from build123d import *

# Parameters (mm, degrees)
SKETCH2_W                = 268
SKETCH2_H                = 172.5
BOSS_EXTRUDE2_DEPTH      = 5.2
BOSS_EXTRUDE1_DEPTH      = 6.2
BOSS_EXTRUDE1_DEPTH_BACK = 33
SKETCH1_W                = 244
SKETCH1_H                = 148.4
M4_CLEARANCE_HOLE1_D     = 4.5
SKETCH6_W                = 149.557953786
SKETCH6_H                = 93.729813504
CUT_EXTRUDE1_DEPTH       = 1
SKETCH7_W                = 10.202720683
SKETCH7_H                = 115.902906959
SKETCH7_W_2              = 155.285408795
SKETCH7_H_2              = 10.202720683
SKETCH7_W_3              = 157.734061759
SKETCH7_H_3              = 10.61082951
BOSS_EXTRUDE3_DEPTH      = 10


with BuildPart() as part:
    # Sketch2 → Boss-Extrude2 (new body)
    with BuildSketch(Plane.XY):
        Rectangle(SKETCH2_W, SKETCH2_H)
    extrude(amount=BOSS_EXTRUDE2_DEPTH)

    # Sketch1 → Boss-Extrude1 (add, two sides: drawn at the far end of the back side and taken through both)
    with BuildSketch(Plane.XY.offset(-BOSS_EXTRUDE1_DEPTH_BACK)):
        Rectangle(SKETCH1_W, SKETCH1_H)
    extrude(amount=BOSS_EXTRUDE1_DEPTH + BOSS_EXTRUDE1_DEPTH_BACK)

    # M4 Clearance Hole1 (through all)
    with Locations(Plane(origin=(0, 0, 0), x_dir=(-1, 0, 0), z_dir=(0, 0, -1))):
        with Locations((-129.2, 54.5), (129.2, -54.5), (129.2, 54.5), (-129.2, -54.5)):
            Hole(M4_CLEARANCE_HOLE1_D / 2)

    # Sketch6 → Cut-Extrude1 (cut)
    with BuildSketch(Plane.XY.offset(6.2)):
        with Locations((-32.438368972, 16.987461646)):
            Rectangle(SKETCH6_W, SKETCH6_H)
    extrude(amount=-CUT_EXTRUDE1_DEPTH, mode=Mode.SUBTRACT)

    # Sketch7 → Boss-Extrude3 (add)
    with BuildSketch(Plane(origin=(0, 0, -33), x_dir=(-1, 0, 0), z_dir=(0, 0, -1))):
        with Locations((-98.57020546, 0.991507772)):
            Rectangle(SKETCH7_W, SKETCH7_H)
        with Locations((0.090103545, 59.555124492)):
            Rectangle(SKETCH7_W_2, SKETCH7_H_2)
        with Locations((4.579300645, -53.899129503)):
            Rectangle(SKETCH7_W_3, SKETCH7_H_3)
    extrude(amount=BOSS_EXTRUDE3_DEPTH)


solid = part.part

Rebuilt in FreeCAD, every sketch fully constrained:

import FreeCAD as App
import Part
import Sketcher
from FreeCAD import Vector
Q = App.Units.Quantity


def add_polygon(sketch, points):
    """Adds a closed chain of lines whose ends are joined by coincident constraints."""
    first, n = sketch.GeometryCount, len(points)
    for a, b in zip(points, points[1:] + points[:1]):
        sketch.addGeometry(Part.LineSegment(App.Vector(*a, 0), App.Vector(*b, 0)), False)
    for i in range(n):
        sketch.addConstraint(Sketcher.Constraint("Coincident", first + i, 2, first + (i + 1) % n, 1))

doc = App.newDocument("Part")
body = doc.addObject("PartDesign::Body", "Body")

# Sketch on XY plane
sketch1 = body.newObject("Sketcher::SketchObject", "Sketch")
sketch1.AttachmentSupport = (doc.getObject("XY_Plane"), [""])
sketch1.MapMode = "FlatFace"
add_polygon(sketch1, [(-134, 86.25), (-134, -86.25), (134, -86.25), (134, 86.25)])  # lines 0-3
sketch1.addConstraint([
    Sketcher.Constraint("Vertical", 0),
    Sketcher.Constraint("Horizontal", 1),
    Sketcher.Constraint("Vertical", 2),
    Sketcher.Constraint("Horizontal", 3),
    Sketcher.Constraint("Symmetric", 0, 2, 2, 2, -1, 1),
    Sketcher.Constraint("DistanceX", 1, 1, 1, 2, Q("268 mm")),
    Sketcher.Constraint("DistanceY", 0, 2, 0, 1, Q("172.5 mm")),
])
pad1 = body.newObject("PartDesign::Pad", "Pad")
pad1.Profile = sketch1
pad1.Length = 5.2

# Sketch on XY plane
sketch2 = body.newObject("Sketcher::SketchObject", "Sketch001")
sketch2.AttachmentSupport = (doc.getObject("XY_Plane"), [""])
sketch2.MapMode = "FlatFace"
add_polygon(sketch2, [(-122, 74.2), (-122, -74.2), (122, -74.2), (122, 74.2)])  # lines 0-3
sketch2.addConstraint([
    Sketcher.Constraint("Vertical", 0),
    Sketcher.Constraint("Horizontal", 1),
    Sketcher.Constraint("Vertical", 2),
    Sketcher.Constraint("Horizontal", 3),
    Sketcher.Constraint("Symmetric", 0, 2, 2, 2, -1, 1),
    Sketcher.Constraint("DistanceX", 1, 1, 1, 2, Q("244 mm")),
    Sketcher.Constraint("DistanceY", 0, 2, 0, 1, Q("148.4 mm")),
])
pad2 = body.newObject("PartDesign::Pad", "Pad001")
pad2.Profile = sketch2
pad2.Type = "TwoLengths"
pad2.Length = 6.2
pad2.Length2 = 33

# Sketch on XY plane
sketch3 = body.newObject("Sketcher::SketchObject", "Sketch002")
sketch3.AttachmentSupport = (doc.getObject("XY_Plane"), [""])
sketch3.MapMode = "FlatFace"
sketch3.addGeometry([
    Part.Circle(Vector(129.2, 54.5, 0), Vector(0, 0, 1), 2.25),
    Part.Circle(Vector(-129.2, -54.5, 0), Vector(0, 0, 1), 2.25),
    Part.Circle(Vector(-129.2, 54.5, 0), Vector(0, 0, 1), 2.25),
    Part.Circle(Vector(129.2, -54.5, 0), Vector(0, 0, 1), 2.25),
], False)
sketch3.addConstraint([
    Sketcher.Constraint("Equal", 0, 1),
    Sketcher.Constraint("Equal", 1, 2),
    Sketcher.Constraint("Equal", 2, 3),
    Sketcher.Constraint("Symmetric", 0, 3, 1, 3, -1, 1),
    Sketcher.Constraint("Symmetric", 2, 3, 3, 3, -1, 1),
    Sketcher.Constraint("Symmetric", 0, 3, 2, 3, -2),
    Sketcher.Constraint("Diameter", 0, Q("4.5 mm")),
    Sketcher.Constraint("DistanceY", 1, 3, 0, 3, Q("109 mm")),
    Sketcher.Constraint("DistanceX", -1, 1, 0, 3, Q("129.2 mm")),
])
doc.recompute()
hole = body.newObject("PartDesign::Hole", "Hole")
hole.Profile = sketch3
hole.ThreadType = "None"
hole.Diameter = 4.5
hole.DepthType = "ThroughAll"
hole.Reversed = True

# Sketch on XY plane
sketch4 = body.newObject("Sketcher::SketchObject", "Sketch003")
sketch4.AttachmentSupport = (doc.getObject("XY_Plane"), [""])
sketch4.MapMode = "FlatFace"
sketch4.AttachmentOffset = App.Placement(Vector(0, 0, 6.2), App.Rotation())
add_polygon(sketch4, [(-107.217346, 63.852368), (-107.217346, -29.877445), (42.340608, -29.877445), (42.340608, 63.852368)])  # lines 0-3
sketch4.addConstraint([
    Sketcher.Constraint("Vertical", 0),
    Sketcher.Constraint("Horizontal", 1),
    Sketcher.Constraint("Vertical", 2),
    Sketcher.Constraint("Horizontal", 3),
    Sketcher.Constraint("DistanceX", 1, 1, 1, 2, Q("149.557954 mm")),
    Sketcher.Constraint("DistanceY", 0, 2, 0, 1, Q("93.729814 mm")),
    Sketcher.Constraint("DistanceY", -1, 1, 2, 2, Q("63.852368 mm")),
    Sketcher.Constraint("DistanceX", 0, 2, -1, 1, Q("107.217346 mm")),
])
pocket1 = body.newObject("PartDesign::Pocket", "Pocket")
pocket1.Profile = sketch4
pocket1.Length = 1

# Sketch on XY plane
sketch5 = body.newObject("Sketcher::SketchObject", "Sketch004")
sketch5.AttachmentSupport = (doc.getObject("XY_Plane"), [""])
sketch5.MapMode = "FlatFace"
sketch5.AttachmentOffset = App.Placement(Vector(0, 0, -33), App.Rotation())
add_polygon(sketch5, [(103.671566, 58.942961), (103.671566, -56.959946), (93.468845, -56.959946), (93.468845, 58.942961)])  # lines 0-3
add_polygon(sketch5, [(77.552601, 64.656485), (77.552601, 54.453764), (-77.732808, 54.453764), (-77.732808, 64.656485)])  # lines 4-7
add_polygon(sketch5, [(74.28773, -48.593715), (74.28773, -59.204544), (-83.446332, -59.204544), (-83.446332, -48.593715)])  # lines 8-11
sketch5.addConstraint([
    Sketcher.Constraint("Vertical", 0),
    Sketcher.Constraint("Horizontal", 1),
    Sketcher.Constraint("Vertical", 2),
    Sketcher.Constraint("Horizontal", 3),
    Sketcher.Constraint("Vertical", 4),
    Sketcher.Constraint("Horizontal", 5),
    Sketcher.Constraint("Vertical", 6),
    Sketcher.Constraint("Horizontal", 7),
    Sketcher.Constraint("Vertical", 8),
    Sketcher.Constraint("Horizontal", 9),
    Sketcher.Constraint("Vertical", 10),
    Sketcher.Constraint("Horizontal", 11),
    Sketcher.Constraint("Equal", 3, 4),
    Sketcher.Constraint("DistanceX", 1, 2, 1, 1, Q("10.202721 mm")),
    Sketcher.Constraint("DistanceX", 5, 2, 5, 1, Q("155.285409 mm")),
    Sketcher.Constraint("DistanceX", 9, 2, 9, 1, Q("157.734062 mm")),
    Sketcher.Constraint("DistanceY", 8, 2, 8, 1, Q("10.61083 mm")),
    Sketcher.Constraint("DistanceX", -1, 1, 4, 2, Q("77.552601 mm")),
    Sketcher.Constraint("DistanceY", 8, 2, 1, 2, Q("2.244599 mm")),
    Sketcher.Constraint("DistanceY", 10, 2, 6, 2, Q("113.2502 mm")),
    Sketcher.Constraint("DistanceY", 0, 2, 0, 1, Q("115.902907 mm")),
    Sketcher.Constraint("DistanceY", -1, 1, 2, 2, Q("58.942961 mm")),
    Sketcher.Constraint("DistanceX", -1, 1, 8, 2, Q("74.28773 mm")),
    Sketcher.Constraint("DistanceX", -1, 1, 0, 2, Q("103.671566 mm")),
])
pad3 = body.newObject("PartDesign::Pad", "Pad002")
pad3.Profile = sketch5
pad3.Length = 10
pad3.Reversed = True

doc.recompute()
